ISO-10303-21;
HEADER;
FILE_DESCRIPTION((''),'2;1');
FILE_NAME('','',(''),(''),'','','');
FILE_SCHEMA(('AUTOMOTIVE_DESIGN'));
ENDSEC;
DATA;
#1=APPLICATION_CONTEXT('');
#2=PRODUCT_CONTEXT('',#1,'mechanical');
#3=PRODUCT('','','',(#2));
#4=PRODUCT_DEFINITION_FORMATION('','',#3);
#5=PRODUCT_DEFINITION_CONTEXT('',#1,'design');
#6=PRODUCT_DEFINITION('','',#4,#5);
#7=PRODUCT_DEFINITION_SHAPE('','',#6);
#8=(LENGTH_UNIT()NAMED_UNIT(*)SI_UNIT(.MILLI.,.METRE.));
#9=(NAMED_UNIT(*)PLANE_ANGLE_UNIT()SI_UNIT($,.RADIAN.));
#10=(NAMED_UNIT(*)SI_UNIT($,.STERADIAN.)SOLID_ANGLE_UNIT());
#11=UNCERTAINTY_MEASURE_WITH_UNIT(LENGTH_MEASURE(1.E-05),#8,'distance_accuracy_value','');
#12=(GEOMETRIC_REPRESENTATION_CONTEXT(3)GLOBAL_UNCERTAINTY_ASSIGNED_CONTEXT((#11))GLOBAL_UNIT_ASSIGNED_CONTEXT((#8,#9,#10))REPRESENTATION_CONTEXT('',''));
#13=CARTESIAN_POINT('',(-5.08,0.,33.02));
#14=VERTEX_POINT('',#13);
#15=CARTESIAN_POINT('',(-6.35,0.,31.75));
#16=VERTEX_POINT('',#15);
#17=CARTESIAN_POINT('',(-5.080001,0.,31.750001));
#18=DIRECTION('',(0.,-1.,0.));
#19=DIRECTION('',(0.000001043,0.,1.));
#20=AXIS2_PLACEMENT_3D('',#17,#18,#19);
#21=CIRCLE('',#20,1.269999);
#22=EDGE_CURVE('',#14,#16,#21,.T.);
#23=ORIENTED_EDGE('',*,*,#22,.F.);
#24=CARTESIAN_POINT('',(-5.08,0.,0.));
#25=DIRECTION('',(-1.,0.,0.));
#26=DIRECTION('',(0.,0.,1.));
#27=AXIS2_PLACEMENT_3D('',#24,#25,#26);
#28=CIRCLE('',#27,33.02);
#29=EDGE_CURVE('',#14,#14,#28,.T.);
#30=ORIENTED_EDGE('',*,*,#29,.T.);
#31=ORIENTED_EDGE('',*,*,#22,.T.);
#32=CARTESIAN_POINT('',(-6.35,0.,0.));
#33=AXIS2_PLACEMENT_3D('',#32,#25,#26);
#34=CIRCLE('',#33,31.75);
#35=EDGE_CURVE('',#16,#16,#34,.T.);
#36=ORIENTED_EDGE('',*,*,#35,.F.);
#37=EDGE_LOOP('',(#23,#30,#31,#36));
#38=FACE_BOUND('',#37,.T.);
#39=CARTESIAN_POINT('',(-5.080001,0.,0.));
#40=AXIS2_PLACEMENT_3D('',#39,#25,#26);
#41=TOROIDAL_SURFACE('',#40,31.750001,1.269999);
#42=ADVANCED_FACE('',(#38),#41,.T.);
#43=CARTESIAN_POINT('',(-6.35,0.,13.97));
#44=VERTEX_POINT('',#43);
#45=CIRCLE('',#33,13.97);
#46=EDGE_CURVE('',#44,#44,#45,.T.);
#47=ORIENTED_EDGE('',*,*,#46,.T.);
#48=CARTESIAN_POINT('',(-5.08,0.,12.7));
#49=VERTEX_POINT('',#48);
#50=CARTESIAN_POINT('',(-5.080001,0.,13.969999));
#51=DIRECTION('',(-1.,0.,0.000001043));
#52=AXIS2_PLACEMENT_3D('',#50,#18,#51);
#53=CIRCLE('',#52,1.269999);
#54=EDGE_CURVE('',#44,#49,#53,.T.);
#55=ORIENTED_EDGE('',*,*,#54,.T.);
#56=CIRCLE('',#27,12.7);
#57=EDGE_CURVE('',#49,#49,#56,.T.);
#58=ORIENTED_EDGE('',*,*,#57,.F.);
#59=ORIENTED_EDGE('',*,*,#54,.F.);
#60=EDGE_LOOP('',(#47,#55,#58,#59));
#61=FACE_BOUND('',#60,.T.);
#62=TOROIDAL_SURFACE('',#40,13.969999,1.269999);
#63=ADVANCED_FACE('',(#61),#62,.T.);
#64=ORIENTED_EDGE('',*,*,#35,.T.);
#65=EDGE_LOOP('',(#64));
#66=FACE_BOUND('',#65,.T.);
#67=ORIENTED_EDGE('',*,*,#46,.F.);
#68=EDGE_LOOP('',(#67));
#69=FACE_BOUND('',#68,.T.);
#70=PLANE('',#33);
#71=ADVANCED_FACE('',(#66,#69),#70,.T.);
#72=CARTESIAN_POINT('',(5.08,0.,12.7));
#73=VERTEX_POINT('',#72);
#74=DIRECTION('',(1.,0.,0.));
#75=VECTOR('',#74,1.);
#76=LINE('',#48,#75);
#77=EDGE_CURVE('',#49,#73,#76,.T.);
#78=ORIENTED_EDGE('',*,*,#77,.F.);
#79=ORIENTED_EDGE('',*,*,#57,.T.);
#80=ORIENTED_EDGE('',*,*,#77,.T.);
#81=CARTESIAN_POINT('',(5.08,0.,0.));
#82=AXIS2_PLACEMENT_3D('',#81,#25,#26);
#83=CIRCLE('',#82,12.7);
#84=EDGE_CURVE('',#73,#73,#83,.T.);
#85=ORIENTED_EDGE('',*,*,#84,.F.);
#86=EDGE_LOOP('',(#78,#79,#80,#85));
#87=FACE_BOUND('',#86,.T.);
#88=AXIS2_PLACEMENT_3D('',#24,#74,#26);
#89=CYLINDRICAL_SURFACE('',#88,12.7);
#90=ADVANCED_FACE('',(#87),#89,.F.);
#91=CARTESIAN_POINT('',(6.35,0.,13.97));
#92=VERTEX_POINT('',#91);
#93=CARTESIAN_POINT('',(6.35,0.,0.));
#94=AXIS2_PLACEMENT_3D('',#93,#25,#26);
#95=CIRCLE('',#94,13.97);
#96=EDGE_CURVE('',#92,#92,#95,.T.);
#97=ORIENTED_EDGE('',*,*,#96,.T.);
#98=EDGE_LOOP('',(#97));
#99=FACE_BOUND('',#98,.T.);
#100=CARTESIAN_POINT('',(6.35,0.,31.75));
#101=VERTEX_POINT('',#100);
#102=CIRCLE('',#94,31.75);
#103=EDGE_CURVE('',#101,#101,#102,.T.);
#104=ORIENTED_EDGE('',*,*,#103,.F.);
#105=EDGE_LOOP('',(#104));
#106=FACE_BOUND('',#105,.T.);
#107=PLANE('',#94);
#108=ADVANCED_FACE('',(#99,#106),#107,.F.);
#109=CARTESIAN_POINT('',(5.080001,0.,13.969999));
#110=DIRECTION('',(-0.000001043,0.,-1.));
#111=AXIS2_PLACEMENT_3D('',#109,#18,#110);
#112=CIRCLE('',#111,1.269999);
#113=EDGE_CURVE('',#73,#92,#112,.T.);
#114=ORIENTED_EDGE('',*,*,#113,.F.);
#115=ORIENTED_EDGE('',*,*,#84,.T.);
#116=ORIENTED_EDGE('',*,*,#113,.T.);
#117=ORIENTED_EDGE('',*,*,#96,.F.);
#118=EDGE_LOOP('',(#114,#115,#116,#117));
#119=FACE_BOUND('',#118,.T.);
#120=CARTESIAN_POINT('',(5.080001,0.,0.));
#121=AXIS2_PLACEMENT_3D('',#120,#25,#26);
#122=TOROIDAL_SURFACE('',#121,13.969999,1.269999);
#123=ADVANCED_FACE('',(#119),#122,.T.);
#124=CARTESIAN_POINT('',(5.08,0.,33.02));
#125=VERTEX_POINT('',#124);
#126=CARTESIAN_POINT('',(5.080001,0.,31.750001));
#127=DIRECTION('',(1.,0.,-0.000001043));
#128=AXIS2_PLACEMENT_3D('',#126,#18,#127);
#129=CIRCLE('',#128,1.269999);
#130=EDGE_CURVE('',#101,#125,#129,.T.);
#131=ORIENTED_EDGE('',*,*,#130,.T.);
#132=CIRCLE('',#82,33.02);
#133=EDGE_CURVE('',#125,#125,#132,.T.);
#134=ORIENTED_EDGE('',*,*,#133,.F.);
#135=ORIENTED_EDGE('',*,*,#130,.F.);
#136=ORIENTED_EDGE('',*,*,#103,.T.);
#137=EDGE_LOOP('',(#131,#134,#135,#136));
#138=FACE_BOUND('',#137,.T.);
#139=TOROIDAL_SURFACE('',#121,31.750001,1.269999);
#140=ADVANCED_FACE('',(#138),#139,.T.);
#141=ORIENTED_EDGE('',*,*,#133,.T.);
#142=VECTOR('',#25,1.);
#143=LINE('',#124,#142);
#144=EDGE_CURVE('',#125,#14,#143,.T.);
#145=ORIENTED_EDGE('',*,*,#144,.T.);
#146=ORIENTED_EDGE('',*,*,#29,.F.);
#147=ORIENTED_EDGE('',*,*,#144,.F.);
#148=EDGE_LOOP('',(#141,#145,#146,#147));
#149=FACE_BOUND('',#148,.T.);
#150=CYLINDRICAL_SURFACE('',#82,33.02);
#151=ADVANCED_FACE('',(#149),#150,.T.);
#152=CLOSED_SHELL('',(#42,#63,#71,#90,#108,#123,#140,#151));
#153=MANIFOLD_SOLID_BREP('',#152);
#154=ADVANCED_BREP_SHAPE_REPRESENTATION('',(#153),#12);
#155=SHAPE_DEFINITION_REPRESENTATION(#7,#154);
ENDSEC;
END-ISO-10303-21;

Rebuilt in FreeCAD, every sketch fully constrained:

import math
import FreeCAD as App
import Part
import Sketcher
Q = App.Units.Quantity

doc = App.newDocument("Part")
body = doc.addObject("PartDesign::Body", "Body")

# Sketch on XZ plane
sketch1 = body.newObject("Sketcher::SketchObject", "Sketch")
sketch1.AttachmentSupport = (doc.getObject("XZ_Plane"), [""])
sketch1.MapMode = "FlatFace"
sketch1.addGeometry([
    Part.LineSegment(App.Vector(5.1, 33, 0), App.Vector(-5.1, 33, 0)),  # 0
    Part.ArcOfCircle(Part.Circle(App.Vector(-5.1, 31.8, 0), App.Vector(0, 0, 1), 1.3), math.radians(90), math.radians(180)),  # 1
    Part.LineSegment(App.Vector(-6.3, 31.8, 0), App.Vector(-6.3, 14, 0)),  # 2
    Part.ArcOfCircle(Part.Circle(App.Vector(-5.1, 14, 0), App.Vector(0, 0, 1), 1.3), math.radians(180), math.radians(270)),  # 3
    Part.LineSegment(App.Vector(-5.1, 12.7, 0), App.Vector(5.1, 12.7, 0)),  # 4
    Part.ArcOfCircle(Part.Circle(App.Vector(5.1, 14, 0), App.Vector(0, 0, 1), 1.3), math.radians(-90), math.radians(0)),  # 5
    Part.LineSegment(App.Vector(6.3, 14, 0), App.Vector(6.3, 31.8, 0)),  # 6
    Part.ArcOfCircle(Part.Circle(App.Vector(5.1, 31.8, 0), App.Vector(0, 0, 1), 1.3), math.radians(0), math.radians(90)),  # 7
], False)
sketch1.addConstraint([
    Sketcher.Constraint("Tangent", 0, 2, 1, 1),
    Sketcher.Constraint("Tangent", 1, 2, 2, 1),
    Sketcher.Constraint("Tangent", 2, 2, 3, 1),
    Sketcher.Constraint("Tangent", 3, 2, 4, 1),
    Sketcher.Constraint("Tangent", 4, 2, 5, 1),
    Sketcher.Constraint("Tangent", 5, 2, 6, 1),
    Sketcher.Constraint("Tangent", 6, 2, 7, 1),
    Sketcher.Constraint("Tangent", 7, 2, 0, 1),
    Sketcher.Constraint("Horizontal", 0),
    Sketcher.Constraint("Vertical", 2),
    Sketcher.Constraint("Horizontal", 4),
    Sketcher.Constraint("Vertical", 6),
    Sketcher.Constraint("Equal", 1, 3),
    Sketcher.Constraint("Equal", 3, 5),
    Sketcher.Constraint("Equal", 5, 7),
    Sketcher.Constraint("Radius", 1, Q("0.0499999 in")),
    Sketcher.Constraint("DistanceX", 0, 2, 0, 1, Q("0.4 in")),
    Sketcher.Constraint("DistanceY", 2, 2, 2, 1, Q("0.7 in")),
    Sketcher.Constraint("DistanceX", 1, 3, -1, 1, Q("0.2000001 in")),
    Sketcher.Constraint("DistanceY", -1, 1, 0, 2, Q("1.3 in")),
])
revolution = body.newObject("PartDesign::Revolution", "Revolution")
revolution.Profile = sketch1
revolution.ReferenceAxis = (sketch1, ["H_Axis"])
revolution.Angle = 360

doc.recompute()
